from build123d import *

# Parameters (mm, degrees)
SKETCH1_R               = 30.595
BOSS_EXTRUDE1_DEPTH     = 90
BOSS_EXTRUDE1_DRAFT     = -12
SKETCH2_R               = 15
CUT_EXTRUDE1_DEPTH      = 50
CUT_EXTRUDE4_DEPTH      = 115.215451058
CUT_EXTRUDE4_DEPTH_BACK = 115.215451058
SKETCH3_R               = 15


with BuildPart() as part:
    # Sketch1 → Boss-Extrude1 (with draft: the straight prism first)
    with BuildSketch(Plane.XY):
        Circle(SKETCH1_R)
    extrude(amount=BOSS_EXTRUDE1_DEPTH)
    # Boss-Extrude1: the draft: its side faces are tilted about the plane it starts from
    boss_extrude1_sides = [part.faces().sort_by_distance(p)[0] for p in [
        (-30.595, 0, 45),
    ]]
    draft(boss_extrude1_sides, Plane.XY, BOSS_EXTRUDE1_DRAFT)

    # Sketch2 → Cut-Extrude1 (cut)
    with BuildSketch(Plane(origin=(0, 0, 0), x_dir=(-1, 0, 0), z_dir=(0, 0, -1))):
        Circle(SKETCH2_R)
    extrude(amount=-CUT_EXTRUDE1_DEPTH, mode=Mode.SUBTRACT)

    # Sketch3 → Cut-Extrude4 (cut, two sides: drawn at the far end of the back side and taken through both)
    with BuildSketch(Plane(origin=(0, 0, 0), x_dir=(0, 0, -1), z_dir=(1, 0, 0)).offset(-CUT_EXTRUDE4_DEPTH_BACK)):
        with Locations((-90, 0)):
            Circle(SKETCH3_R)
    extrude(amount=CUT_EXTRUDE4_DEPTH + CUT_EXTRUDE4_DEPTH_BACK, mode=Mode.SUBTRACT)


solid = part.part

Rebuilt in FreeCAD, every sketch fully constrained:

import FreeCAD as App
import Part
import Sketcher

V = App.Vector


def faces_at(feature, points):
    """Names of the faces that lie closest to the given points."""
    faces = feature.Shape.Faces
    near = lambda p: min(range(len(faces)), key=lambda i: faces[i].distToShape(Part.Vertex(*p))[0])
    return sorted({f"Face{near(p) + 1}" for p in points})

doc = App.newDocument("Part")
body = doc.addObject("PartDesign::Body", "Body")

sketch1 = body.newObject("Sketcher::SketchObject", "Sketch")
sketch1.AttachmentSupport = (doc.getObject("XY_Plane"), [""])
sketch1.MapMode = "FlatFace"
sketch1.addGeometry(Part.Circle(V(0, 0, 0), V(0, 0, 1), 30.595), False)
sketch1.addConstraint([
    Sketcher.Constraint("Coincident", 0, 3, -1, 1),
    Sketcher.Constraint("Diameter", 0, 61.19),
])
pad1 = body.newObject("PartDesign::Pad", "Pad")
pad1.Profile = sketch1
pad1.Length = 90
doc.recompute()

draft = body.newObject("PartDesign::Draft", "Draft")
draft.Base = (pad1, faces_at(pad1, [(-30.595, 0, 45)]))
draft.NeutralPlane = (doc.getObject("XY_Plane"), [""])
draft.Angle = 12
draft.Reversed = True

sketch2 = body.newObject("Sketcher::SketchObject", "Sketch001")
sketch2.AttachmentSupport = (doc.getObject("XY_Plane"), [""])
sketch2.MapMode = "FlatFace"
sketch2.addGeometry(Part.Circle(V(0, 0, 0), V(0, 0, 1), 15), False)
sketch2.addConstraint([
    Sketcher.Constraint("Coincident", 0, 3, -1, 1),
    Sketcher.Constraint("Diameter", 0, 30.0),
])
pocket1 = body.newObject("PartDesign::Pocket", "Pocket")
pocket1.Profile = sketch2
pocket1.Length = 50
pocket1.Reversed = True

sketch3 = body.newObject("Sketcher::SketchObject", "Sketch002")
sketch3.AttachmentSupport = (doc.getObject("YZ_Plane"), [""])
sketch3.MapMode = "FlatFace"
sketch3.addGeometry(Part.Circle(V(0, 90, 0), V(0, 0, 1), 15), False)
sketch3.addConstraint([
    Sketcher.Constraint("PointOnObject", 0, 3, -2),
    Sketcher.Constraint("Diameter", 0, 30.0),
    Sketcher.Constraint("DistanceY", -1, 1, 0, 3, 90.0),
])
pocket2 = body.newObject("PartDesign::Pocket", "Pocket001")
pocket2.Profile = sketch3
pocket2.Type = "ThroughAll"
pocket2.Midplane = True

doc.recompute()
